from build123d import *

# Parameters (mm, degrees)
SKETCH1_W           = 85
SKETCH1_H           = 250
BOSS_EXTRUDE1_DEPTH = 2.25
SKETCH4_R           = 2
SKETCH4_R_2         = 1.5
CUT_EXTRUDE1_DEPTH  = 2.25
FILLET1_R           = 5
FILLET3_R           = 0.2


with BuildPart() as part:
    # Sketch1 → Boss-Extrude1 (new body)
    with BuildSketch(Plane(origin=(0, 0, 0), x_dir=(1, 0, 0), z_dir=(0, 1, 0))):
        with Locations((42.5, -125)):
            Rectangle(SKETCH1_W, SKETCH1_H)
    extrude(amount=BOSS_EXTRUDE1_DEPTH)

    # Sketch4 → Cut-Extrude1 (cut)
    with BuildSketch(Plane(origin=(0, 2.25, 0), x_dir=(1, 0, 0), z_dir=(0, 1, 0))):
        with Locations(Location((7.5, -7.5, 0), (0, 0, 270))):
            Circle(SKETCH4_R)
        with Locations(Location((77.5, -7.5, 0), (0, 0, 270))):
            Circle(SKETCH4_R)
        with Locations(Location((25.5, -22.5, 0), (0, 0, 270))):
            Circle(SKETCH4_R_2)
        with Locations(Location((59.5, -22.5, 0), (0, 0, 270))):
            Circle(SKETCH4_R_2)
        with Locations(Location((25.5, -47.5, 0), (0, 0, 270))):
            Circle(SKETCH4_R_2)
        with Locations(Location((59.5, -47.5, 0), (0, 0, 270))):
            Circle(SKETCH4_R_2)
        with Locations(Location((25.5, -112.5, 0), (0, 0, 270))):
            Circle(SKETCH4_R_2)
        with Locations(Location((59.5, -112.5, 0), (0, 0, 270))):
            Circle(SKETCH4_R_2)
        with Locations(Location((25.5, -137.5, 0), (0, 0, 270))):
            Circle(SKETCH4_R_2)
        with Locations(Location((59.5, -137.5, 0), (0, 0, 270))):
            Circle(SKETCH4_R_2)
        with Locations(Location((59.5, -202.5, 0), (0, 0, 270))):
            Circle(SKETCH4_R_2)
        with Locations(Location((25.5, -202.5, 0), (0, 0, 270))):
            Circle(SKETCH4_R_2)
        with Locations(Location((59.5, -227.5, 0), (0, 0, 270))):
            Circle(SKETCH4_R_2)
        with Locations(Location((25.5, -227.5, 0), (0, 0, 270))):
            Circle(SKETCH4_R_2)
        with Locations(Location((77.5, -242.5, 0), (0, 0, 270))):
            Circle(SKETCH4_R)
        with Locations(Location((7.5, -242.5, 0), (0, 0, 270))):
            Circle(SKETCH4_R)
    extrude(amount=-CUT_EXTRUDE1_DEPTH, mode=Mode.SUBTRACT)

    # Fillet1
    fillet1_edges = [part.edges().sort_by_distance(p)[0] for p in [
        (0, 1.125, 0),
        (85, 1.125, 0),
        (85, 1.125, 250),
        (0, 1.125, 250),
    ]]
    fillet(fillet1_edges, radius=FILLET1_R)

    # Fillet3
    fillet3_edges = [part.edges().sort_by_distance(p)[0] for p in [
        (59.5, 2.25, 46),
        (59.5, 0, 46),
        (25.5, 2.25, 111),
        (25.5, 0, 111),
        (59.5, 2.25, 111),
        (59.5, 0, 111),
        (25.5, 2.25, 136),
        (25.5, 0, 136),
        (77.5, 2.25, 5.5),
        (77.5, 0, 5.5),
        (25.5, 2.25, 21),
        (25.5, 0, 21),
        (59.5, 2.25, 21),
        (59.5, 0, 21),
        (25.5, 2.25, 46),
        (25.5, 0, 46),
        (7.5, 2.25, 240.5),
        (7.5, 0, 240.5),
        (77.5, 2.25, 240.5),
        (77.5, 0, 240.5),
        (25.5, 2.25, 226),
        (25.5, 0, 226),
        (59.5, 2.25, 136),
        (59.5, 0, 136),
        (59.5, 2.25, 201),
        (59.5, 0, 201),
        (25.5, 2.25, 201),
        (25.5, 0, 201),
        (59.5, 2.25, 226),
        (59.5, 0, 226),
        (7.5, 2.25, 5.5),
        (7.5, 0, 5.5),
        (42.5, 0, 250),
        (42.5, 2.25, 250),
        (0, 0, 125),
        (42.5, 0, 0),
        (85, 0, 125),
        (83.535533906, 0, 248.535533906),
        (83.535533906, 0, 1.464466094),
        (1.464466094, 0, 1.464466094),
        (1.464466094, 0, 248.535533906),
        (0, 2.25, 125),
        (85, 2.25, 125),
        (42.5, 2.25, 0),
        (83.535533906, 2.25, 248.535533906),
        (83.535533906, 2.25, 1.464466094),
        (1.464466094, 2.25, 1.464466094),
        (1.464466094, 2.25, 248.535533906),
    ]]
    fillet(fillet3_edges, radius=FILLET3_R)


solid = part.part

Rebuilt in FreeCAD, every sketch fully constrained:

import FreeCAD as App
import Part
import Sketcher

V = App.Vector
Q = App.Units.Quantity


def edges_at(feature, points):
    """Names of the edges that pass closest to the given points."""
    edges = feature.Shape.Edges
    near = lambda p: min(range(len(edges)), key=lambda i: edges[i].distToShape(Part.Vertex(*p))[0])
    return sorted({f"Edge{near(p) + 1}" for p in points})

doc = App.newDocument("Part")
body = doc.addObject("PartDesign::Body", "Body")

sketch1 = body.newObject("Sketcher::SketchObject", "Sketch")
sketch1.AttachmentSupport = (doc.getObject("XZ_Plane"), [""])
sketch1.MapMode = "FlatFace"
sketch1.addGeometry([
    Part.LineSegment(V(0, 0, 0), V(0, 250, 0)),
    Part.LineSegment(V(0, 250, 0), V(85, 250, 0)),
    Part.LineSegment(V(85, 250, 0), V(85, 0, 0)),
    Part.LineSegment(V(85, 0, 0), V(0, 0, 0)),
], False)
sketch1.addConstraint([
    Sketcher.Constraint("Coincident", 0, 2, 1, 1),
    Sketcher.Constraint("Coincident", 1, 2, 2, 1),
    Sketcher.Constraint("Coincident", 2, 2, 3, 1),
    Sketcher.Constraint("Coincident", 3, 2, 0, 1),
    Sketcher.Constraint("Vertical", 0),
    Sketcher.Constraint("Horizontal", 1),
    Sketcher.Constraint("Vertical", 2),
    Sketcher.Constraint("Horizontal", 3),
    Sketcher.Constraint("Coincident", 3, 2, -1, 1),
    Sketcher.Constraint("DistanceX", 1, 1, 1, 2, Q("85 mm")),
    Sketcher.Constraint("DistanceY", 0, 1, 0, 2, Q("250 mm")),
])
pad1 = body.newObject("PartDesign::Pad", "Pad")
pad1.Profile = sketch1
pad1.Length = 2.25
pad1.Reversed = True

sketch2 = body.newObject("Sketcher::SketchObject", "Sketch001")
sketch2.AttachmentSupport = (doc.getObject("XZ_Plane"), [""])
sketch2.MapMode = "FlatFace"
sketch2.AttachmentOffset = App.Placement(V(0, 0, -2.25), App.Rotation())
sketch2.addGeometry([
    Part.Circle(V(7.5, 7.5, 0), V(0, 0, 1), 2),
    Part.Circle(V(77.5, 7.5, 0), V(0, 0, 1), 2),
    Part.Circle(V(25.5, 22.5, 0), V(0, 0, 1), 1.5),
    Part.Circle(V(59.5, 22.5, 0), V(0, 0, 1), 1.5),
    Part.Circle(V(25.5, 47.5, 0), V(0, 0, 1), 1.5),
    Part.Circle(V(59.5, 47.5, 0), V(0, 0, 1), 1.5),
    Part.Circle(V(25.5, 112.5, 0), V(0, 0, 1), 1.5),
    Part.Circle(V(59.5, 112.5, 0), V(0, 0, 1), 1.5),
    Part.Circle(V(25.5, 137.5, 0), V(0, 0, 1), 1.5),
    Part.Circle(V(59.5, 137.5, 0), V(0, 0, 1), 1.5),
    Part.Circle(V(59.5, 202.5, 0), V(0, 0, 1), 1.5),
    Part.Circle(V(25.5, 202.5, 0), V(0, 0, 1), 1.5),
    Part.Circle(V(59.5, 227.5, 0), V(0, 0, 1), 1.5),
    Part.Circle(V(25.5, 227.5, 0), V(0, 0, 1), 1.5),
    Part.Circle(V(77.5, 242.5, 0), V(0, 0, 1), 2),
    Part.Circle(V(7.5, 242.5, 0), V(0, 0, 1), 2),
], False)
sketch2.addConstraint([
    Sketcher.Constraint("Equal", 0, 1),
    Sketcher.Constraint("Equal", 2, 3),
    Sketcher.Constraint("Equal", 3, 4),
    Sketcher.Constraint("Equal", 4, 5),
    Sketcher.Constraint("Equal", 5, 6),
    Sketcher.Constraint("Equal", 6, 7),
    Sketcher.Constraint("Equal", 7, 8),
    Sketcher.Constraint("Equal", 8, 9),
    Sketcher.Constraint("Equal", 9, 10),
    Sketcher.Constraint("Equal", 10, 11),
    Sketcher.Constraint("Equal", 11, 12),
    Sketcher.Constraint("Equal", 12, 13),
    Sketcher.Constraint("Equal", 1, 14),
    Sketcher.Constraint("Equal", 14, 15),
    Sketcher.Constraint("Horizontal", 0, 3, 1, 3),
    Sketcher.Constraint("Horizontal", 2, 3, 3, 3),
    Sketcher.Constraint("Horizontal", 4, 3, 5, 3),
    Sketcher.Constraint("Horizontal", 6, 3, 7, 3),
    Sketcher.Constraint("Horizontal", 8, 3, 9, 3),
    Sketcher.Constraint("Horizontal", 10, 3, 11, 3),
    Sketcher.Constraint("Horizontal", 12, 3, 13, 3),
    Sketcher.Constraint("Horizontal", 14, 3, 15, 3),
    Sketcher.Constraint("Vertical", 2, 3, 4, 3),
    Sketcher.Constraint("Vertical", 3, 3, 5, 3),
    Sketcher.Constraint("Vertical", 4, 3, 6, 3),
    Sketcher.Constraint("Vertical", 5, 3, 7, 3),
    Sketcher.Constraint("Vertical", 6, 3, 8, 3),
    Sketcher.Constraint("Vertical", 7, 3, 9, 3),
    Sketcher.Constraint("Vertical", 9, 3, 10, 3),
    Sketcher.Constraint("Vertical", 8, 3, 11, 3),
    Sketcher.Constraint("Vertical", 10, 3, 12, 3),
    Sketcher.Constraint("Vertical", 11, 3, 13, 3),
    Sketcher.Constraint("Vertical", 1, 3, 14, 3),
    Sketcher.Constraint("Vertical", 0, 3, 15, 3),
    Sketcher.Constraint("Diameter", 0, Q("4 mm")),
    Sketcher.Constraint("Diameter", 2, Q("3 mm")),
    Sketcher.Constraint("DistanceX", 0, 3, 1, 3, Q("70 mm")),
    Sketcher.Constraint("DistanceX", 0, 3, 2, 3, Q("18 mm")),
    Sketcher.Constraint("DistanceY", 0, 3, 2, 3, Q("15 mm")),
    Sketcher.Constraint("DistanceX", 3, 3, 1, 3, Q("18 mm")),
    Sketcher.Constraint("DistanceY", 2, 3, 4, 3, Q("25 mm")),
    Sketcher.Constraint("DistanceY", 4, 3, 6, 3, Q("65 mm")),
    Sketcher.Constraint("DistanceY", 6, 3, 8, 3, Q("25 mm")),
    Sketcher.Constraint("DistanceY", 9, 3, 10, 3, Q("65 mm")),
    Sketcher.Constraint("DistanceY", 10, 3, 12, 3, Q("25 mm")),
    Sketcher.Constraint("DistanceY", 12, 3, 14, 3, Q("15 mm")),
    Sketcher.Constraint("DistanceX", -1, 1, 0, 3, Q("7.5 mm")),
    Sketcher.Constraint("DistanceY", -1, 1, 0, 3, Q("7.5 mm")),
])
pocket1 = body.newObject("PartDesign::Pocket", "Pocket")
pocket1.Profile = sketch2
pocket1.Length = 2.25
pocket1.Reversed = True
doc.recompute()

fillet = body.newObject("PartDesign::Fillet", "Fillet")
fillet.Base = (pocket1, edges_at(pocket1, [
    (0, 1.125, 0),
    (85, 1.125, 0),
    (85, 1.125, 250),
    (0, 1.125, 250),
]))
fillet.Radius = 5
doc.recompute()

fillet2 = body.newObject("PartDesign::Fillet", "Fillet001")
fillet2.Base = (fillet, edges_at(fillet, [
    (59.5, 2.25, 46),
    (59.5, 0, 46),
    (25.5, 2.25, 111),
    (25.5, 0, 111),
    (59.5, 2.25, 111),
    (59.5, 0, 111),
    (25.5, 2.25, 136),
    (25.5, 0, 136),
    (77.5, 2.25, 5.5),
    (77.5, 0, 5.5),
    (25.5, 2.25, 21),
    (25.5, 0, 21),
    (59.5, 2.25, 21),
    (59.5, 0, 21),
    (25.5, 2.25, 46),
    (25.5, 0, 46),
    (7.5, 2.25, 240.5),
    (7.5, 0, 240.5),
    (77.5, 2.25, 240.5),
    (77.5, 0, 240.5),
    (25.5, 2.25, 226),
    (25.5, 0, 226),
    (59.5, 2.25, 136),
    (59.5, 0, 136),
    (59.5, 2.25, 201),
    (59.5, 0, 201),
    (25.5, 2.25, 201),
    (25.5, 0, 201),
    (59.5, 2.25, 226),
    (59.5, 0, 226),
    (7.5, 2.25, 5.5),
    (7.5, 0, 5.5),
    (42.5, 0, 250),
    (42.5, 2.25, 250),
    (0, 0, 125),
    (42.5, 0, 0),
    (85, 0, 125),
    (83.536, 0, 248.536),
    (83.536, 0, 1.464),
    (1.464, 0, 1.464),
    (1.464, 0, 248.536),
    (0, 2.25, 125),
    (85, 2.25, 125),
    (42.5, 2.25, 0),
    (83.536, 2.25, 248.536),
    (83.536, 2.25, 1.464),
    (1.464, 2.25, 1.464),
    (1.464, 2.25, 248.536),
]))
fillet2.Radius = 0.2

doc.recompute()
